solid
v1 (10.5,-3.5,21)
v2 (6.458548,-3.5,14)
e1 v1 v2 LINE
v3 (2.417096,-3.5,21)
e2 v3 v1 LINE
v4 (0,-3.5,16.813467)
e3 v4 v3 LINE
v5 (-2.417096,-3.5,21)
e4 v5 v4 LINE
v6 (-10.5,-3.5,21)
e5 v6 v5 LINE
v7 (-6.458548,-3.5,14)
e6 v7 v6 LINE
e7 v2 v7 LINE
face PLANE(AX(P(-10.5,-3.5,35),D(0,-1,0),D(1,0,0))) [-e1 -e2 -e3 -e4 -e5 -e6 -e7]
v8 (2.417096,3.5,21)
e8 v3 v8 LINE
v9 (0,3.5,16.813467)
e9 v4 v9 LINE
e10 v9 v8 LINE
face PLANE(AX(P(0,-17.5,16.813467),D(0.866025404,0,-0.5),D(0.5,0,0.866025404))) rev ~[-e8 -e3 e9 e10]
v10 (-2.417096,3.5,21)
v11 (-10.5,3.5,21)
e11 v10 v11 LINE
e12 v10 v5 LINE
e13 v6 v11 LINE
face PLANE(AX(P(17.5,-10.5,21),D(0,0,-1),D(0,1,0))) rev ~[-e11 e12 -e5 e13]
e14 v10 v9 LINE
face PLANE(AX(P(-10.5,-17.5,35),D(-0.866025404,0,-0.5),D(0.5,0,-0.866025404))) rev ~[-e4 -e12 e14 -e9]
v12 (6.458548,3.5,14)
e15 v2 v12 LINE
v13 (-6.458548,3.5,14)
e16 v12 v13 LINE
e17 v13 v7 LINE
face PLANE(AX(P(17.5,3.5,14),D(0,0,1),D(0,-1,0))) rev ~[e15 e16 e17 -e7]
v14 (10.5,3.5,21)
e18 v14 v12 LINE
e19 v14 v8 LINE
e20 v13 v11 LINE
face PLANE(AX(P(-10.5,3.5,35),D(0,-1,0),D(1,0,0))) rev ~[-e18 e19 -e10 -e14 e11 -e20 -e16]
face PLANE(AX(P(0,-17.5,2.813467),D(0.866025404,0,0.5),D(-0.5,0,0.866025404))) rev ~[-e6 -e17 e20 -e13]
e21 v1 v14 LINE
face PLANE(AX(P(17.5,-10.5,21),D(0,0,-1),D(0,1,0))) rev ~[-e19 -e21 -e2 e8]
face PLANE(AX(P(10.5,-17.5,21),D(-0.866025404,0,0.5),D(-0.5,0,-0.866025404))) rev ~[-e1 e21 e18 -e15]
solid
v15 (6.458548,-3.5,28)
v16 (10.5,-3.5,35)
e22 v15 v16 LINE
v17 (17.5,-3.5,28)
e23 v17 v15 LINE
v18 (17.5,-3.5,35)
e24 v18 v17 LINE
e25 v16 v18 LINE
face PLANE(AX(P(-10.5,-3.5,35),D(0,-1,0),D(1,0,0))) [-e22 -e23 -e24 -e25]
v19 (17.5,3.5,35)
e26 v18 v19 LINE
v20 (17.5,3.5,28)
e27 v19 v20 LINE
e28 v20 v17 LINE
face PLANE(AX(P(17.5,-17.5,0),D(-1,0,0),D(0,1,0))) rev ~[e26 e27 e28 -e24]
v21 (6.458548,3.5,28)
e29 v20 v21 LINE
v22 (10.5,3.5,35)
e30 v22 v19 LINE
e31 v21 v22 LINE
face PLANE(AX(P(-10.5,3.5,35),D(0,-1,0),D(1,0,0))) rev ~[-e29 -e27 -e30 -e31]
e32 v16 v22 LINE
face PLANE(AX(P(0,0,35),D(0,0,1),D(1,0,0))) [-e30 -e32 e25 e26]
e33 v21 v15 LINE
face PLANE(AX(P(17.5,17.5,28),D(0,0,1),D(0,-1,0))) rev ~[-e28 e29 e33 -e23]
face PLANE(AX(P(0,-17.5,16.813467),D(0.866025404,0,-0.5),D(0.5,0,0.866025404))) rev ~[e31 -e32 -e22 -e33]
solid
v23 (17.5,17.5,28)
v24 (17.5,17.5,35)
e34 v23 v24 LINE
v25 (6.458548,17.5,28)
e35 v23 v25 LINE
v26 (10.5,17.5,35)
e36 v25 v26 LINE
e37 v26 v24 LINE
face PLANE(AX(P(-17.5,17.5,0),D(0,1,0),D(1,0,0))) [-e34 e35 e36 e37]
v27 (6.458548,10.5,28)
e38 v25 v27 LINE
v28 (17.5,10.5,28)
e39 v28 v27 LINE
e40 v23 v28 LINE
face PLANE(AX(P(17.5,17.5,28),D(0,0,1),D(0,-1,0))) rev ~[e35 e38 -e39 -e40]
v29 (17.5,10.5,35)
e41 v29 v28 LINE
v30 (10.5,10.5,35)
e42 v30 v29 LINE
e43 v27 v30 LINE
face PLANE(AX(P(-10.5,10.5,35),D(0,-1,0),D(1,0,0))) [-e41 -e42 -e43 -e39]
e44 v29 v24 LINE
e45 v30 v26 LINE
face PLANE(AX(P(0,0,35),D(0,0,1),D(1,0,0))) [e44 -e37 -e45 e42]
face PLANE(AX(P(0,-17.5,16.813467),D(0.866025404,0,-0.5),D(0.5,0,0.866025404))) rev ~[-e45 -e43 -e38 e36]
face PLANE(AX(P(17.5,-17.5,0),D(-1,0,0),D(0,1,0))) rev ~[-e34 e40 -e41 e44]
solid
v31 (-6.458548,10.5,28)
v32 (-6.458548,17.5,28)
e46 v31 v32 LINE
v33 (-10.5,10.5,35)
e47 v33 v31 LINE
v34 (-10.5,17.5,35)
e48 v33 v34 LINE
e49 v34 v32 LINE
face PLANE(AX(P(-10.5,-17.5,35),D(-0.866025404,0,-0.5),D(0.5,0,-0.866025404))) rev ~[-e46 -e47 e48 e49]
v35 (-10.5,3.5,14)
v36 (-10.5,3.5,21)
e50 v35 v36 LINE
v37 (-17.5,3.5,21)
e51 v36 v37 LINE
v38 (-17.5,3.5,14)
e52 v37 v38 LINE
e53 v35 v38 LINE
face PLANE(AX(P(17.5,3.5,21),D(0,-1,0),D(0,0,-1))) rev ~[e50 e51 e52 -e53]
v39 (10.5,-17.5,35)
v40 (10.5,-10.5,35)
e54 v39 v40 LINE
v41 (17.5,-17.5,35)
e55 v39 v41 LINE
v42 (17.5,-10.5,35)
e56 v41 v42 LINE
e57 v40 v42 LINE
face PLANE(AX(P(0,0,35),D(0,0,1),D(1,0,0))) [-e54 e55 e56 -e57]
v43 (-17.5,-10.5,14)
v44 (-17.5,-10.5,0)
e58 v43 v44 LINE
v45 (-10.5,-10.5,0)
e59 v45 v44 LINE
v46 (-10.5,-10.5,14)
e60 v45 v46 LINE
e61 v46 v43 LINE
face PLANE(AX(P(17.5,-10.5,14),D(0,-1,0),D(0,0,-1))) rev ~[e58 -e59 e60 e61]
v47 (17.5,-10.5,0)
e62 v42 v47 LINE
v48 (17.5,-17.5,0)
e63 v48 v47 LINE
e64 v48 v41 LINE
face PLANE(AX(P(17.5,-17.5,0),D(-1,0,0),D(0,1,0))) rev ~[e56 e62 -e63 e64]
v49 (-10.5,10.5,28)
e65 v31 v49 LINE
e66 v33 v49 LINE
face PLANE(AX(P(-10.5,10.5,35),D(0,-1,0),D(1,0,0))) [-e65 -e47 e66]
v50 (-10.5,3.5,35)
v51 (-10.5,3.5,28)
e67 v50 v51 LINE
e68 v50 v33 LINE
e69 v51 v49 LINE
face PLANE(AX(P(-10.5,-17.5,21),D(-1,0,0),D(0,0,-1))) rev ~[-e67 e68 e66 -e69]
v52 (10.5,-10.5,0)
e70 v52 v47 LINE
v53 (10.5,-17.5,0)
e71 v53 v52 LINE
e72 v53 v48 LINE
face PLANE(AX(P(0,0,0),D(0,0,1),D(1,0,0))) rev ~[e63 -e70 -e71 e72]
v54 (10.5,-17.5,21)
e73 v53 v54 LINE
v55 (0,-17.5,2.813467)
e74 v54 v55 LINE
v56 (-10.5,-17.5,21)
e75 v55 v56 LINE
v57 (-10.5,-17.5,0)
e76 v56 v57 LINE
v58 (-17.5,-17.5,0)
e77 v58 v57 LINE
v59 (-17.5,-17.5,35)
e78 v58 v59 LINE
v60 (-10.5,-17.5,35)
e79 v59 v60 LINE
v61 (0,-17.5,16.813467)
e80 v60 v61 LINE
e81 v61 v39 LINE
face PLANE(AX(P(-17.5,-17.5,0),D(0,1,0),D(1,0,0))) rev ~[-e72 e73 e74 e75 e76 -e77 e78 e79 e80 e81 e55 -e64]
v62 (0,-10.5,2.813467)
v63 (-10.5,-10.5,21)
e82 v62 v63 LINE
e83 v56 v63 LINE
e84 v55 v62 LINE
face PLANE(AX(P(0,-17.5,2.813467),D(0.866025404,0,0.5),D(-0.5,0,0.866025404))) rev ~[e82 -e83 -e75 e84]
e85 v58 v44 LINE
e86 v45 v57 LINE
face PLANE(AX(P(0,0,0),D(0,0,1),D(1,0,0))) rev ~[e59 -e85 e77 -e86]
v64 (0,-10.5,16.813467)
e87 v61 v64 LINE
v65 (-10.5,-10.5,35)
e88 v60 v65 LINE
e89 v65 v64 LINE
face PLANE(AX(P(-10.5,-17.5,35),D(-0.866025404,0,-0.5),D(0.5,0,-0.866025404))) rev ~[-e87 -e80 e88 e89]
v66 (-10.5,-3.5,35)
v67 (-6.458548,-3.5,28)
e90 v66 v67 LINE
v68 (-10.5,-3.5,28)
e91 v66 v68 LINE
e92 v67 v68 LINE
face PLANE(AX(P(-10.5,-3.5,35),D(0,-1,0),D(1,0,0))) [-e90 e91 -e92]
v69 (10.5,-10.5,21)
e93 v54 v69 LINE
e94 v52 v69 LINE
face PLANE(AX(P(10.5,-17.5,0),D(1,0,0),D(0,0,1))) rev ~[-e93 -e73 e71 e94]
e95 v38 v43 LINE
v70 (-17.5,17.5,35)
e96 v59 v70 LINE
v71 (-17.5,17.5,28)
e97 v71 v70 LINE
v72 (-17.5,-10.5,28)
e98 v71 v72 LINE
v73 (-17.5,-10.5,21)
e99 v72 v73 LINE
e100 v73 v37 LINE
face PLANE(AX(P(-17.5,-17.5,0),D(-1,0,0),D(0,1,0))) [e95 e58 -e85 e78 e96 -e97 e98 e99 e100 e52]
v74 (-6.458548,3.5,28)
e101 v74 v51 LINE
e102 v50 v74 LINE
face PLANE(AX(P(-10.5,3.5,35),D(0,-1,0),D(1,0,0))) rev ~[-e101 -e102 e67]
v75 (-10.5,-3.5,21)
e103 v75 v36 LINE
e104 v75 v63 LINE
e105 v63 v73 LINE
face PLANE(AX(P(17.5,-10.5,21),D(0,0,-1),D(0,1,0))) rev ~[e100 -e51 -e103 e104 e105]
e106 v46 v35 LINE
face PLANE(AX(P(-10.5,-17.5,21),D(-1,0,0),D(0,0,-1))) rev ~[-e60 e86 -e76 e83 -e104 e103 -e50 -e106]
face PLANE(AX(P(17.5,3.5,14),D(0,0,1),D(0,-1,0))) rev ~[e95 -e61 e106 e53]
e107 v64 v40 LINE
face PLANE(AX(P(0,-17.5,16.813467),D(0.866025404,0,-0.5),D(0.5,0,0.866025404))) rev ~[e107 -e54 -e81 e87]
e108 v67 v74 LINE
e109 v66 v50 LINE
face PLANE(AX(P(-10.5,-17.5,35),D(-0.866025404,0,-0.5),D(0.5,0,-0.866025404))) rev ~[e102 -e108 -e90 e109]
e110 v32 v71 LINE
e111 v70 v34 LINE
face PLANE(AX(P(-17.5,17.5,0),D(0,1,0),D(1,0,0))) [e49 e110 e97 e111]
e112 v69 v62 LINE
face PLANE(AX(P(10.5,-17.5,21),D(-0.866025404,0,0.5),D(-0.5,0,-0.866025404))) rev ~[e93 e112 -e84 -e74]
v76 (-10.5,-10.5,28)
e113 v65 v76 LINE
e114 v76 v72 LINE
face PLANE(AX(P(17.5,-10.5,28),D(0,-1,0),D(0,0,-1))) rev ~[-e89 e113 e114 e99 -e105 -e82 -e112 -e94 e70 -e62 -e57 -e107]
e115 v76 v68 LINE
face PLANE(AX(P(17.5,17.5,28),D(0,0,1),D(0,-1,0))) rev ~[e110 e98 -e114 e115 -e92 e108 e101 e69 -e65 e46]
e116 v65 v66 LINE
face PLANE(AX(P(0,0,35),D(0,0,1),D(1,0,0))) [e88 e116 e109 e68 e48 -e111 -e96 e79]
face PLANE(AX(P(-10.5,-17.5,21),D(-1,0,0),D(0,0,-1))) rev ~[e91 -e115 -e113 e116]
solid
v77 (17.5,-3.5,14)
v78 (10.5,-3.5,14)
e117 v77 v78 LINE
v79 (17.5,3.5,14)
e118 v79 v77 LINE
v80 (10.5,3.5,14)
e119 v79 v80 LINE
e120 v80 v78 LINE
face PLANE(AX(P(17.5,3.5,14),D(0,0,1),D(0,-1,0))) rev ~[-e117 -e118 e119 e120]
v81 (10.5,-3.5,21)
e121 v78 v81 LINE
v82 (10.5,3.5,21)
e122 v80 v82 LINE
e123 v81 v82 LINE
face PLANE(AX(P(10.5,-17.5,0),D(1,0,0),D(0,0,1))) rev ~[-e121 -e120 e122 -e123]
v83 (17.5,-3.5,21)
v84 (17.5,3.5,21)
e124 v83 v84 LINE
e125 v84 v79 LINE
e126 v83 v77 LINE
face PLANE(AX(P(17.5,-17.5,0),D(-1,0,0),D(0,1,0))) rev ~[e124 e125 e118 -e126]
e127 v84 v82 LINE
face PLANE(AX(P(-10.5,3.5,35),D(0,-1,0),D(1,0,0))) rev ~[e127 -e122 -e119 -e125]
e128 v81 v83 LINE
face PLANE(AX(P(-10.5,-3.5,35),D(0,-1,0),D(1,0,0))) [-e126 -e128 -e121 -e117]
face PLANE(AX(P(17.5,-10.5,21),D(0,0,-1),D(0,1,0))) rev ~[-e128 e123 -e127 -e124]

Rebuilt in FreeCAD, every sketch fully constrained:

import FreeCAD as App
import Part
import Sketcher
Q = App.Units.Quantity


def add_polygon(sketch, points):
    """Adds a closed chain of lines whose ends are joined by coincident constraints."""
    first, n = sketch.GeometryCount, len(points)
    for a, b in zip(points, points[1:] + points[:1]):
        sketch.addGeometry(Part.LineSegment(App.Vector(*a, 0), App.Vector(*b, 0)), False)
    for i in range(n):
        sketch.addConstraint(Sketcher.Constraint("Coincident", first + i, 2, first + (i + 1) % n, 1))

doc = App.newDocument("Part")
body = doc.addObject("PartDesign::Body", "Body")
body.AllowCompound = True

# Sketch on XY plane
sketch1 = doc.addObject("Sketcher::SketchObject", "Sketch")
body.addObject(sketch1)
sketch1.AttachmentSupport = (doc.XY_Plane, [""])
sketch1.MapMode = "FlatFace"
add_polygon(sketch1, [(-17.5, 17.5), (-17.5, -17.5), (17.5, -17.5), (17.5, 17.5)])  # lines 0-3
sketch1.addConstraint([
    Sketcher.Constraint("Vertical", 0),
    Sketcher.Constraint("Horizontal", 1),
    Sketcher.Constraint("Vertical", 2),
    Sketcher.Constraint("Horizontal", 3),
    Sketcher.Constraint("Symmetric", 0, 2, 2, 2, -1, 1),
    Sketcher.Constraint("Equal", 3, 0),
    Sketcher.Constraint("DistanceX", 1, 1, 1, 2, 35.0),
])
pad1 = doc.addObject("PartDesign::Pad", "Pad")
body.addObject(pad1)
pad1.Profile = sketch1
pad1.Length = 35

# Sketch on XY plane
sketch2 = doc.addObject("Sketcher::SketchObject", "Sketch001")
body.addObject(sketch2)
sketch2.AttachmentSupport = (doc.XY_Plane, [""])
sketch2.MapMode = "FlatFace"
sketch2.AttachmentOffset = App.Placement(App.Vector(0, 0, 35), App.Rotation())
add_polygon(sketch2, [(-10.5, 10.5), (-10.5, 3.5), (17.5, 3.5), (17.5, 10.5)])  # lines 0-3
sketch2.addConstraint([
    Sketcher.Constraint("Vertical", 0),
    Sketcher.Constraint("Horizontal", 1),
    Sketcher.Constraint("Vertical", 2),
    Sketcher.Constraint("Horizontal", 3),
    Sketcher.Constraint("DistanceX", 1, 1, 1, 2, 28.0),
    Sketcher.Constraint("DistanceY", 0, 2, 0, 1, 7.0),
    Sketcher.Constraint("DistanceX", 0, 2, -1, 1, 10.5),
    Sketcher.Constraint("DistanceY", -1, 1, 0, 2, 3.5),
])
pocket1 = doc.addObject("PartDesign::Pocket", "Pocket")
body.addObject(pocket1)
pocket1.Profile = sketch2
pocket1.Length = 35

# Sketch on XY plane
sketch3 = doc.addObject("Sketcher::SketchObject", "Sketch002")
body.addObject(sketch3)
sketch3.AttachmentSupport = (doc.XY_Plane, [""])
sketch3.MapMode = "FlatFace"
sketch3.AttachmentOffset = App.Placement(App.Vector(0, 0, 35), App.Rotation())
add_polygon(sketch3, [(-10.5, -3.5), (-10.5, -10.5), (17.5, -10.5), (17.5, -3.5)])  # lines 0-3
sketch3.addConstraint([
    Sketcher.Constraint("Vertical", 0),
    Sketcher.Constraint("Horizontal", 1),
    Sketcher.Constraint("Vertical", 2),
    Sketcher.Constraint("Horizontal", 3),
    Sketcher.Constraint("DistanceX", 1, 1, 1, 2, 28.0),
    Sketcher.Constraint("DistanceY", 0, 2, 0, 1, 7.0),
    Sketcher.Constraint("DistanceX", 0, 2, -1, 1, 10.5),
    Sketcher.Constraint("DistanceY", 0, 2, -1, 1, 10.5),
])
pocket2 = doc.addObject("PartDesign::Pocket", "Pocket001")
body.addObject(pocket2)
pocket2.Profile = sketch3
pocket2.Length = 35

# Sketch on XZ plane
sketch4 = doc.addObject("Sketcher::SketchObject", "Sketch003")
body.addObject(sketch4)
sketch4.AttachmentSupport = (doc.XZ_Plane, [""])
sketch4.MapMode = "FlatFace"
sketch4.AttachmentOffset = App.Placement(App.Vector(0, 0, 17.5), App.Rotation())
add_polygon(sketch4, [(10.5, 35), (-10.5, 35), (0, 16.813467)])  # lines 0-2
sketch4.addConstraint([
    Sketcher.Constraint("Horizontal", 0),
    Sketcher.Constraint("PointOnObject", 1, 2, -2),
    Sketcher.Constraint("Equal", 1, 2),
    Sketcher.Constraint("DistanceX", 0, 2, 0, 1, 21.0),
    Sketcher.Constraint("Angle", 1, Q("-60 deg")),
    Sketcher.Constraint("DistanceY", -1, 1, 0, 2, 35.0),
])
pocket3 = doc.addObject("PartDesign::Pocket", "Pocket002")
body.addObject(pocket3)
pocket3.Profile = sketch4
pocket3.Length = 35

# Sketch on XZ plane
sketch5 = doc.addObject("Sketcher::SketchObject", "Sketch004")
body.addObject(sketch5)
sketch5.AttachmentSupport = (doc.XZ_Plane, [""])
sketch5.MapMode = "FlatFace"
sketch5.AttachmentOffset = App.Placement(App.Vector(0, 0, 17.5), App.Rotation())
add_polygon(sketch5, [(-10.5, 21), (-10.5, 0), (10.5, 0), (10.5, 21), (0, 2.813467)])  # lines 0-4
sketch5.addConstraint([
    Sketcher.Constraint("Vertical", 0),
    Sketcher.Constraint("Horizontal", 1),
    Sketcher.Constraint("Vertical", 2),
    Sketcher.Constraint("Symmetric", 0, 2, 1, 2, -1, 1),
    Sketcher.Constraint("PointOnObject", 3, 2, -2),
    Sketcher.Constraint("Horizontal", 2, 2, 4, 2),
    Sketcher.Constraint("Equal", 1, 0),
    Sketcher.Constraint("DistanceX", 1, 1, 1, 2, 21.0),
    Sketcher.Constraint("Angle", 3, Q("-120 deg")),
])
pocket4 = doc.addObject("PartDesign::Pocket", "Pocket003")
body.addObject(pocket4)
pocket4.Profile = sketch5
pocket4.Length = 35

# Sketch on YZ plane
sketch6 = doc.addObject("Sketcher::SketchObject", "Sketch005")
body.addObject(sketch6)
sketch6.AttachmentSupport = (doc.YZ_Plane, [""])
sketch6.MapMode = "FlatFace"
sketch6.AttachmentOffset = App.Placement(App.Vector(0, 0, 17.5), App.Rotation())
add_polygon(sketch6, [(17.5, 28), (-10.5, 28), (-10.5, 21), (3.5, 21), (3.5, 14), (-10.5, 14), (-10.5, 0), (17.5, 0)])  # lines 0-7
sketch6.addConstraint([
    Sketcher.Constraint("Horizontal", 0),
    Sketcher.Constraint("Vertical", 1),
    Sketcher.Constraint("Horizontal", 2),
    Sketcher.Constraint("Vertical", 3),
    Sketcher.Constraint("Horizontal", 4),
    Sketcher.Constraint("Vertical", 5),
    Sketcher.Constraint("Horizontal", 6),
    Sketcher.Constraint("Vertical", 7),
    Sketcher.Constraint("PointOnObject", 5, 2, -1),
    Sketcher.Constraint("Vertical", 1, 2, 4, 2),
    Sketcher.Constraint("Equal", 1, 3),
    Sketcher.Constraint("Equal", 4, 5),
    Sketcher.Constraint("Equal", 6, 7),
    Sketcher.Constraint("DistanceX", 0, 2, 0, 1, 28.0),
    Sketcher.Constraint("DistanceX", 2, 1, 2, 2, 14.0),
    Sketcher.Constraint("DistanceX", 0, 2, -1, 1, 10.5),
])
pocket5 = doc.addObject("PartDesign::Pocket", "Pocket004")
body.addObject(pocket5)
pocket5.Profile = sketch6
pocket5.Length = 35

doc.recompute()
